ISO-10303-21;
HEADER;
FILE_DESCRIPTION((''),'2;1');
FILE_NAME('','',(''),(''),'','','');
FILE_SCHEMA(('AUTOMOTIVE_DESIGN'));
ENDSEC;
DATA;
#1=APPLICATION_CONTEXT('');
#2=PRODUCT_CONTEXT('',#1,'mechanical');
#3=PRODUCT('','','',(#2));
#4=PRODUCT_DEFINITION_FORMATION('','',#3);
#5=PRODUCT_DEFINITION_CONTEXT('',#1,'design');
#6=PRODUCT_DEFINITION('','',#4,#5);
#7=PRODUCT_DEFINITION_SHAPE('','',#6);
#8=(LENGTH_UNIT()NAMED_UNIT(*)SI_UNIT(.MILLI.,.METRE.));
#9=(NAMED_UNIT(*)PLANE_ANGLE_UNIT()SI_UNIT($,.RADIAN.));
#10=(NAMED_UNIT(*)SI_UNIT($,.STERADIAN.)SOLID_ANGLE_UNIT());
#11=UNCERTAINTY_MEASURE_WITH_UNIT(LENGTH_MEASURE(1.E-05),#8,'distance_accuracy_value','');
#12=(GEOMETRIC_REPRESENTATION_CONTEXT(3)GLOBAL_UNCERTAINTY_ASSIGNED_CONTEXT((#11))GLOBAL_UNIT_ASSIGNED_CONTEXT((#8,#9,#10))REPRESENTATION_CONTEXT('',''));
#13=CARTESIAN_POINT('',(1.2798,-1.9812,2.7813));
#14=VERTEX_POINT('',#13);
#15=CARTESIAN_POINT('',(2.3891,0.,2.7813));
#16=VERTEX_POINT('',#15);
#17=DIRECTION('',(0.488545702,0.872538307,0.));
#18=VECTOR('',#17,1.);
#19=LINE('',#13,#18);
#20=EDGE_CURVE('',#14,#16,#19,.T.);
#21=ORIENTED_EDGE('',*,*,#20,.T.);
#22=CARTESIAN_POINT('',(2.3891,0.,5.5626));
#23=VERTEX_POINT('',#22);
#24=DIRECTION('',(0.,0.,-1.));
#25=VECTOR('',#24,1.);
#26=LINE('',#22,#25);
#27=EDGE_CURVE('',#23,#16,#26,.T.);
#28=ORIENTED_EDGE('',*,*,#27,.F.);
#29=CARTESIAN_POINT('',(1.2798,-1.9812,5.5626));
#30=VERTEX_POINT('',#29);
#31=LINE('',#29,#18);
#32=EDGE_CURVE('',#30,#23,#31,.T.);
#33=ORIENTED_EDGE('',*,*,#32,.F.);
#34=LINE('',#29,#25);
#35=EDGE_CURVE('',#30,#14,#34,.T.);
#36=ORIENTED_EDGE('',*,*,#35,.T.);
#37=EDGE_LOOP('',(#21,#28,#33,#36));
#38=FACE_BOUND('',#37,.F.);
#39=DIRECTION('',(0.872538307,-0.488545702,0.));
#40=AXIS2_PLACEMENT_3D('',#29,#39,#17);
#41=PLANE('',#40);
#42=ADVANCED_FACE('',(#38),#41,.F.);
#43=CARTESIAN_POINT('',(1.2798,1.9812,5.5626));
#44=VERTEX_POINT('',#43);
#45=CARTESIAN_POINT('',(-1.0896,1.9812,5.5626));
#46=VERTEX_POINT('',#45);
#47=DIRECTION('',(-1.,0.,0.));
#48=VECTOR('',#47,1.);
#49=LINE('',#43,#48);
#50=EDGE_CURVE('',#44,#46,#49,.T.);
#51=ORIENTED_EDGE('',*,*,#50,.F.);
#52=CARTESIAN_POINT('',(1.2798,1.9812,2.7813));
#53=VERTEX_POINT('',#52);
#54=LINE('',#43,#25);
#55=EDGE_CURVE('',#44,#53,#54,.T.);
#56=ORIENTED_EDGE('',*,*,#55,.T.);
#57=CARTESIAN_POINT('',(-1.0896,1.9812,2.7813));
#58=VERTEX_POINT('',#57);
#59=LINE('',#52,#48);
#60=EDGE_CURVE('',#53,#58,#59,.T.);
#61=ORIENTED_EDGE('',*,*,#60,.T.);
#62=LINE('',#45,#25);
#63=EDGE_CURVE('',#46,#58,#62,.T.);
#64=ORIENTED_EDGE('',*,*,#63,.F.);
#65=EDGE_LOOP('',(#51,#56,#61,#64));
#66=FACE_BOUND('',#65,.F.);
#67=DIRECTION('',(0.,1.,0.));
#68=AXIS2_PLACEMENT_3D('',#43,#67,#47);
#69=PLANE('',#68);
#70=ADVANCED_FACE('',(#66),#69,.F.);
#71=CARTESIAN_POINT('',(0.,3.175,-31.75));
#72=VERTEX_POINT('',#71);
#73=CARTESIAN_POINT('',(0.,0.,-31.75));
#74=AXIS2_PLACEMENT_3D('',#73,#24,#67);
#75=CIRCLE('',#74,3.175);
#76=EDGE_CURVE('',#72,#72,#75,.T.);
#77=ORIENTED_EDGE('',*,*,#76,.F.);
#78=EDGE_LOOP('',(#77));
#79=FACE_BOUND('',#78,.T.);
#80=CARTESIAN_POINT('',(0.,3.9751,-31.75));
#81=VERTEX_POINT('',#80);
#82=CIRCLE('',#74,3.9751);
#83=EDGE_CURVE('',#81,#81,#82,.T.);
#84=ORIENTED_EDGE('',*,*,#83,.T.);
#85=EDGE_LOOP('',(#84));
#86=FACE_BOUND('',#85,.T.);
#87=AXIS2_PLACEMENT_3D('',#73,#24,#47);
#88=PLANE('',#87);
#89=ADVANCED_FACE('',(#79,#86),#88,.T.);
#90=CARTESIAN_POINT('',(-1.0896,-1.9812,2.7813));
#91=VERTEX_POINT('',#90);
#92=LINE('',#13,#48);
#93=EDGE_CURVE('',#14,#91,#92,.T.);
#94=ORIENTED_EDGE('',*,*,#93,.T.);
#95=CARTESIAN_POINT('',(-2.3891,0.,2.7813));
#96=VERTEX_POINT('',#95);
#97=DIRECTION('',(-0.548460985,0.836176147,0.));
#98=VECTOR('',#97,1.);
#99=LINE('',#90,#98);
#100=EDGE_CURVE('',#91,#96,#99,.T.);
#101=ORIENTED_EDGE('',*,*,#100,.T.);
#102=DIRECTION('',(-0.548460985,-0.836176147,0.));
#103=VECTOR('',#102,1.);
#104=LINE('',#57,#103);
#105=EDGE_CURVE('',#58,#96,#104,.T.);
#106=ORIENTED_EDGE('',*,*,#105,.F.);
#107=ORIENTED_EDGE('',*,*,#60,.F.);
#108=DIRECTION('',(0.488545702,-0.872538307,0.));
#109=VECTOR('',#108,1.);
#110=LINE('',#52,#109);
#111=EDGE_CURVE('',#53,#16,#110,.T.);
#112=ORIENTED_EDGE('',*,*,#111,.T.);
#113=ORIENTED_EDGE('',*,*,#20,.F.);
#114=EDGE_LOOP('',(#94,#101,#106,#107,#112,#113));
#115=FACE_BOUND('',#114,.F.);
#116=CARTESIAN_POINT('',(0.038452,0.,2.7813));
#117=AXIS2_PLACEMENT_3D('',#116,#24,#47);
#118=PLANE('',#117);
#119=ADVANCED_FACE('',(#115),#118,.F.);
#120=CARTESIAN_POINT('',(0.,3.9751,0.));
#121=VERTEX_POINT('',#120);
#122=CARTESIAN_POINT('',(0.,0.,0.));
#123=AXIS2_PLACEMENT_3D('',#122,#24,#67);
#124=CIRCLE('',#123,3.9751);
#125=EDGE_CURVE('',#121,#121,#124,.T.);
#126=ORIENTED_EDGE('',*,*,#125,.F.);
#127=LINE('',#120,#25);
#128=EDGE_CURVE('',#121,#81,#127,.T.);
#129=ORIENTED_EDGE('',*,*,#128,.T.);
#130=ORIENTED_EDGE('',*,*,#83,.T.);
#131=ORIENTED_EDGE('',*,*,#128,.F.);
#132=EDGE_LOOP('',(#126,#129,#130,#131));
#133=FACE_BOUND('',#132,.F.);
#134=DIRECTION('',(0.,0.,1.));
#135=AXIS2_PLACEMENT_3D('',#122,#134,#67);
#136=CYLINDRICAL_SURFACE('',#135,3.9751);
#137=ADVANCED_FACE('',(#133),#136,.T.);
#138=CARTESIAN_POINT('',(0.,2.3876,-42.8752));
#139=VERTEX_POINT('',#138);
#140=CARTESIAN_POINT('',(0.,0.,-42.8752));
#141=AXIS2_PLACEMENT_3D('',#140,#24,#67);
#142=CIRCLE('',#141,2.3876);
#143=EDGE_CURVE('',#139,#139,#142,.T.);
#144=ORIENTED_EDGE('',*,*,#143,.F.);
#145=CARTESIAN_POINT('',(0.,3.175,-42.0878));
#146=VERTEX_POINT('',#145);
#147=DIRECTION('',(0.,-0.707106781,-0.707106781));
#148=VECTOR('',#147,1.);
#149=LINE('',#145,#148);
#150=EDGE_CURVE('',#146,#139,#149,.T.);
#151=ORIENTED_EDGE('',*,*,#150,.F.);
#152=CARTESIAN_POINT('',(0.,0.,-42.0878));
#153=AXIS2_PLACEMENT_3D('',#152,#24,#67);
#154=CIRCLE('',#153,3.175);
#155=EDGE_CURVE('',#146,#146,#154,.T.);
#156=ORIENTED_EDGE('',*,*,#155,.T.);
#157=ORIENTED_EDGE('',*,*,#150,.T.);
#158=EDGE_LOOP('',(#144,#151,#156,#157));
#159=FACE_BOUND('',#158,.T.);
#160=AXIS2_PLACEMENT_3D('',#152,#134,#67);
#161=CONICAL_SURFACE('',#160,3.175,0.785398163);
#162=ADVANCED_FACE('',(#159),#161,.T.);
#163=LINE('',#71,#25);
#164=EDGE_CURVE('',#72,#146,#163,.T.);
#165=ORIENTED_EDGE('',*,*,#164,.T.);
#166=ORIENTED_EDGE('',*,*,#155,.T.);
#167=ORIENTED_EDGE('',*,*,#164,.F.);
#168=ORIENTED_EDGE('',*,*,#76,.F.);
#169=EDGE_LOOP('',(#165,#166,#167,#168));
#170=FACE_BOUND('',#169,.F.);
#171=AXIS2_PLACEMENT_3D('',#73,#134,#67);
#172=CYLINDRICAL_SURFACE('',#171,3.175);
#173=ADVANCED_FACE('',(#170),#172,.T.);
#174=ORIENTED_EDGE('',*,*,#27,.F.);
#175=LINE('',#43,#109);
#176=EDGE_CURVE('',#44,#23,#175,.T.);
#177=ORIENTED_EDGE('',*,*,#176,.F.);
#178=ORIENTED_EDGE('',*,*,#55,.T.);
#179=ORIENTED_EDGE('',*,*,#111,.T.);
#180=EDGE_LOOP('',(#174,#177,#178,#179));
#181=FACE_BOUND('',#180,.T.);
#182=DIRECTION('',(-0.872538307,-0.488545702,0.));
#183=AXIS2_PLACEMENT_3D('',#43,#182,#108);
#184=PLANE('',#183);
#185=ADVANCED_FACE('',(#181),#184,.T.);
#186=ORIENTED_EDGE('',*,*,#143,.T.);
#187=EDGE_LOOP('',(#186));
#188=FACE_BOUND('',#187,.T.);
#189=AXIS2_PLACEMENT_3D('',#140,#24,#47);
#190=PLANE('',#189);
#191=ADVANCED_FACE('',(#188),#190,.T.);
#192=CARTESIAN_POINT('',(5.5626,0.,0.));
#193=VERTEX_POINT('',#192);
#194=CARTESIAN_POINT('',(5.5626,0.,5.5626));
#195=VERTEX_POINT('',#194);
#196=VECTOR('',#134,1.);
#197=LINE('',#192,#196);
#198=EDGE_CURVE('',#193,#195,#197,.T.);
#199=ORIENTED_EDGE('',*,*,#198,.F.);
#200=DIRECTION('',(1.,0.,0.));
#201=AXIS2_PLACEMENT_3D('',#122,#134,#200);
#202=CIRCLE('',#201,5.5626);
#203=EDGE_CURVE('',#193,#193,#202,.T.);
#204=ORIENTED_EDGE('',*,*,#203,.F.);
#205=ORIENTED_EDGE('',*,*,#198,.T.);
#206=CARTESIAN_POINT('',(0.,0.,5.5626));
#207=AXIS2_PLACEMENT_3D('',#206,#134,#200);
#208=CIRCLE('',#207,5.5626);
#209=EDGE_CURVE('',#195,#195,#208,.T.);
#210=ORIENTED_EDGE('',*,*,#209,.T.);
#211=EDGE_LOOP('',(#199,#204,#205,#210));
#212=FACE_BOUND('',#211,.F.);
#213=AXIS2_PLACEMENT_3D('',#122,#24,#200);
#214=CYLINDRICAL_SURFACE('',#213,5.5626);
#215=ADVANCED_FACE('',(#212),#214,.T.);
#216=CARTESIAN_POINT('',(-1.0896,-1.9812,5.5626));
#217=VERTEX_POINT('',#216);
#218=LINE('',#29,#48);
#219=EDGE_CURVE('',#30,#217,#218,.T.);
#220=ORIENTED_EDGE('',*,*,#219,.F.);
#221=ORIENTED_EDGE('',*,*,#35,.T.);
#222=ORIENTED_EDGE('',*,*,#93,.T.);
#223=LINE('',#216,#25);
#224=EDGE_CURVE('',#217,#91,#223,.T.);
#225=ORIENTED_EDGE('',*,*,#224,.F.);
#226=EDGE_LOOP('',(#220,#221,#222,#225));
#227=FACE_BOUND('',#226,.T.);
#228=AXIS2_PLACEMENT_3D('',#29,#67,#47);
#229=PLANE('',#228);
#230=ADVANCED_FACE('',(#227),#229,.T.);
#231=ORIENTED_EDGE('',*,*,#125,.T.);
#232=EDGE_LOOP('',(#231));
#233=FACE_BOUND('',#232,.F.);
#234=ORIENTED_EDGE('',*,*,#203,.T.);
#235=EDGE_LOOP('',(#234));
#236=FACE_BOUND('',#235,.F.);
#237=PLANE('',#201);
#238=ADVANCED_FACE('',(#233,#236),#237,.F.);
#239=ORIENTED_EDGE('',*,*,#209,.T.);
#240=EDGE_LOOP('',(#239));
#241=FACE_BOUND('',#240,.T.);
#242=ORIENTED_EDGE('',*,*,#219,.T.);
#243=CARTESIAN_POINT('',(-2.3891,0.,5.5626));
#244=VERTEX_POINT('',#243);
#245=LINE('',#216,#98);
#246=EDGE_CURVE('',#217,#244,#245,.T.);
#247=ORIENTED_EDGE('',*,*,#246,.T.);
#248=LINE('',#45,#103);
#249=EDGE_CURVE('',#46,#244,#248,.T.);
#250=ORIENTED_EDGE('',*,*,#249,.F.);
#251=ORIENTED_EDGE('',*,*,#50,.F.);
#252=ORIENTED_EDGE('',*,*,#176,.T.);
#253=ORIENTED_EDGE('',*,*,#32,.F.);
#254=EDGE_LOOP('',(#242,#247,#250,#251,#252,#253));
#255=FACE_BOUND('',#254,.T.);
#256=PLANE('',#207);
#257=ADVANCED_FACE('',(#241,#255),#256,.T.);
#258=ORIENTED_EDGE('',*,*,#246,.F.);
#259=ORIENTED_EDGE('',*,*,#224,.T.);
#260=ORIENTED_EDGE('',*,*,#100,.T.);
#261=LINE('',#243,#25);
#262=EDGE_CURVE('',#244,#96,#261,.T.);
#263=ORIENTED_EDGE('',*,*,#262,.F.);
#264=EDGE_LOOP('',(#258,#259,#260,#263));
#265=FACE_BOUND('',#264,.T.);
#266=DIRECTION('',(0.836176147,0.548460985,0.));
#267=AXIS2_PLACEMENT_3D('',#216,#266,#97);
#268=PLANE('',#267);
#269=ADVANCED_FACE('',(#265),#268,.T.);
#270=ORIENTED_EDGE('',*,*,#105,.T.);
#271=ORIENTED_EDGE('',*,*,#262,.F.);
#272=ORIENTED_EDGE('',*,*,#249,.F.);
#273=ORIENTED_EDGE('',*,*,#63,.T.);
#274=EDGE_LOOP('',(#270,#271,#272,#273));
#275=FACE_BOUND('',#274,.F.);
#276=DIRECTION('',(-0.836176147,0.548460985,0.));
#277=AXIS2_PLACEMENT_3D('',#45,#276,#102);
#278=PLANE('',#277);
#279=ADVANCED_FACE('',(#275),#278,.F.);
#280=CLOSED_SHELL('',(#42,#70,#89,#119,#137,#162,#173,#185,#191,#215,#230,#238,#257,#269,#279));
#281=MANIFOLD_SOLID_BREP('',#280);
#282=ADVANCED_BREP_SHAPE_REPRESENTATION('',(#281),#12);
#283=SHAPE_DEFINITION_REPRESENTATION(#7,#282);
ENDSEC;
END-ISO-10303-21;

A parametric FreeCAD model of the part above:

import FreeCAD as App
import Part
import Sketcher
Q = App.Units.Quantity


def edges_at(feature, points):
    """Names of the edges that pass closest to the given points."""
    edges = feature.Shape.Edges
    near = lambda p: min(range(len(edges)), key=lambda i: edges[i].distToShape(Part.Vertex(*p))[0])
    return sorted({f"Edge{near(p) + 1}" for p in points})

doc = App.newDocument("Part")
body = doc.addObject("PartDesign::Body", "Body")

sketch1 = body.newObject("Sketcher::SketchObject", "Sketch")
sketch1.AttachmentSupport = (doc.getObject("XY_Plane"), [""])
sketch1.MapMode = "FlatFace"
sketch1.addGeometry(Part.Circle(App.Vector(0, 0, 0), App.Vector(0, 0, 1), 5.5626), False)
sketch1.addConstraint([
    Sketcher.Constraint("Coincident", 0, 3, -1, 1),
    Sketcher.Constraint("Diameter", 0, Q("0.438 in")),
])
pad1 = body.newObject("PartDesign::Pad", "Pad")
pad1.Profile = sketch1
pad1.Length = Q("0.219 in")

sketch2 = body.newObject("Sketcher::SketchObject", "Sketch001")
sketch2.AttachmentSupport = (doc.getObject("XY_Plane"), [""])
sketch2.MapMode = "FlatFace"
sketch2.addGeometry(Part.Circle(App.Vector(0, 0, 0), App.Vector(0, 0, 1), 3.9751), False)
sketch2.addConstraint([
    Sketcher.Constraint("Coincident", 0, 3, -1, 1),
    Sketcher.Constraint("Diameter", 0, Q("0.313 in")),
])
pad2 = body.newObject("PartDesign::Pad", "Pad001")
pad2.Profile = sketch2
pad2.Length = Q("1.25 in")
pad2.Reversed = True

sketch3 = body.newObject("Sketcher::SketchObject", "Sketch002")
sketch3.AttachmentSupport = (doc.getObject("XY_Plane"), [""])
sketch3.MapMode = "FlatFace"
sketch3.AttachmentOffset = App.Placement(App.Vector(0, 0, -1.25 * 25.4), App.Rotation())
sketch3.addGeometry(Part.Circle(App.Vector(0, 0, 0), App.Vector(0, 0, 1), 3.175), False)
sketch3.addConstraint([
    Sketcher.Constraint("Coincident", 0, 3, -1, 1),
    Sketcher.Constraint("Diameter", 0, Q("0.25 in")),
])
pad3 = body.newObject("PartDesign::Pad", "Pad002")
pad3.Profile = sketch3
pad3.Length = Q("0.438 in")
pad3.Reversed = True

sketch4 = body.newObject("Sketcher::SketchObject", "Sketch003")
sketch4.AttachmentSupport = (doc.getObject("XY_Plane"), [""])
sketch4.MapMode = "FlatFace"
sketch4.AttachmentOffset = App.Placement(App.Vector(0, 0, 0.219 * 25.4), App.Rotation())
sketch4.addGeometry([
    Part.LineSegment(App.Vector(-2.3891, 0, 0), App.Vector(-1.0896, -1.9812, 0)),
    Part.LineSegment(App.Vector(-1.0896, -1.9812, 0), App.Vector(1.2798, -1.9812, 0)),
    Part.LineSegment(App.Vector(1.2798, -1.9812, 0), App.Vector(2.3891, 0, 0)),
    Part.LineSegment(App.Vector(2.3891, 0, 0), App.Vector(1.2798, 1.9812, 0)),
    Part.LineSegment(App.Vector(1.2798, 1.9812, 0), App.Vector(-1.0896, 1.9812, 0)),
    Part.LineSegment(App.Vector(-1.0896, 1.9812, 0), App.Vector(-2.3891, 0, 0)),
], False)
sketch4.addConstraint([
    Sketcher.Constraint("Coincident", 0, 2, 1, 1),
    Sketcher.Constraint("Coincident", 1, 2, 2, 1),
    Sketcher.Constraint("Coincident", 2, 2, 3, 1),
    Sketcher.Constraint("Coincident", 3, 2, 4, 1),
    Sketcher.Constraint("Coincident", 4, 2, 5, 1),
    Sketcher.Constraint("Coincident", 5, 2, 0, 1),
    Sketcher.Constraint("Horizontal", 1),
    Sketcher.Constraint("Horizontal", 4),
    Sketcher.Constraint("Symmetric", 2, 2, 5, 2, -1, 1),
    Sketcher.Constraint("Symmetric", 1, 2, 3, 2, -1),
    Sketcher.Constraint("PointOnObject", 2, 2, -1),
    Sketcher.Constraint("Vertical", 0, 2, 4, 2),
    Sketcher.Constraint("DistanceY", 0, 2, -1, 1, Q("0.078 in")),
    Sketcher.Constraint("Distance", 2, Q("0.0894 in")),
    Sketcher.Constraint("DistanceX", 1, 1, 1, 2, 2.3694),
    Sketcher.Constraint("DistanceX", 0, 2, -1, 1, Q("0.0429 in")),
])
pocket1 = body.newObject("PartDesign::Pocket", "Pocket")
pocket1.Profile = sketch4
pocket1.Length = Q("0.1095 in")
doc.recompute()

chamfer = body.newObject("PartDesign::Chamfer", "Chamfer")
chamfer.Base = (pocket1, edges_at(pocket1, [(0, -3.175, -42.875)]))
chamfer.Size = Q("0.031 in")

doc.recompute()
